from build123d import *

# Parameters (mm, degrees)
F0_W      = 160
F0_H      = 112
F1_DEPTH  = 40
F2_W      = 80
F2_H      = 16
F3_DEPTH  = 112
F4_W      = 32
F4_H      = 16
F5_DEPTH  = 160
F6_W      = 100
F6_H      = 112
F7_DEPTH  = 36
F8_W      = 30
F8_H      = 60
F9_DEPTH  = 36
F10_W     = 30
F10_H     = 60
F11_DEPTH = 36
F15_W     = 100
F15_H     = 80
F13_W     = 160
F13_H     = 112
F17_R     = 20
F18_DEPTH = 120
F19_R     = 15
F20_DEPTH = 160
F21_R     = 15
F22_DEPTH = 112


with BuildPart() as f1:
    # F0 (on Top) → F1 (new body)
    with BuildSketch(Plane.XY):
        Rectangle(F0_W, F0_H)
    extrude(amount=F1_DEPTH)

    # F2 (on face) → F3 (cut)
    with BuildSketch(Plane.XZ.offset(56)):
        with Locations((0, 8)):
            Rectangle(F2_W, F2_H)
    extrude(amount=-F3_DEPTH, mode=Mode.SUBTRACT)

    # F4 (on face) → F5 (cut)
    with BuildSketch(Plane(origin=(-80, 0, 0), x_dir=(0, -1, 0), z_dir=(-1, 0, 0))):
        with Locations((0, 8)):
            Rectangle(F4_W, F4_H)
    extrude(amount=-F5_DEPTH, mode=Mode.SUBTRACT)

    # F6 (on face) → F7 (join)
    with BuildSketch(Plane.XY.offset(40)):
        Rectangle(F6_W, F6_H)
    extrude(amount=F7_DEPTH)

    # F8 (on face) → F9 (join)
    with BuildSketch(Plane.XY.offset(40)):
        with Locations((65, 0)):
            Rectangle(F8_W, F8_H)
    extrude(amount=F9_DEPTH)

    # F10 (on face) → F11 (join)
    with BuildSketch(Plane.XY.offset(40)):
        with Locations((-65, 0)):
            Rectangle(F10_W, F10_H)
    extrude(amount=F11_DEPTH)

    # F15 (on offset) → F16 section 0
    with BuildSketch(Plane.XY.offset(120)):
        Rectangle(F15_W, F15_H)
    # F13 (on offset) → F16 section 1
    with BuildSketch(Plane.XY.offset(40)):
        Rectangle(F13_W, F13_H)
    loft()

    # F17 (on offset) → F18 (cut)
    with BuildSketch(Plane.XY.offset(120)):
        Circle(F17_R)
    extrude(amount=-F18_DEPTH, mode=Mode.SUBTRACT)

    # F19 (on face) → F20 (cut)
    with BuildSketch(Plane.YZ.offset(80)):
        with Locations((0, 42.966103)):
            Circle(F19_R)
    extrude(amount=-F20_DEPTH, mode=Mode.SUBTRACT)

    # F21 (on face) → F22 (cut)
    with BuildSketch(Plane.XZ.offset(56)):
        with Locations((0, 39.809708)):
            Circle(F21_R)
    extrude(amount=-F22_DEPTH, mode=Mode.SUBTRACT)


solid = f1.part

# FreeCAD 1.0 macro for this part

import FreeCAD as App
import Part
import Sketcher

V = App.Vector

doc = App.newDocument("Part")
body = doc.addObject("PartDesign::Body", "Body")

# Sketch on XY plane
sketch1 = doc.addObject("Sketcher::SketchObject", "Sketch")
body.addObject(sketch1)
sketch1.AttachmentSupport = (doc.XY_Plane, [""])
sketch1.MapMode = "FlatFace"
sketch1.addGeometry([
    Part.LineSegment(V(-80, 56, 0), V(-80, -56, 0)),
    Part.LineSegment(V(-80, -56, 0), V(80, -56, 0)),
    Part.LineSegment(V(80, -56, 0), V(80, 56, 0)),
    Part.LineSegment(V(80, 56, 0), V(-80, 56, 0)),
], False)
sketch1.addConstraint([
    Sketcher.Constraint("Coincident", 0, 2, 1, 1),
    Sketcher.Constraint("Coincident", 1, 2, 2, 1),
    Sketcher.Constraint("Coincident", 2, 2, 3, 1),
    Sketcher.Constraint("Coincident", 3, 2, 0, 1),
    Sketcher.Constraint("Vertical", 0),
    Sketcher.Constraint("Horizontal", 1),
    Sketcher.Constraint("Vertical", 2),
    Sketcher.Constraint("Horizontal", 3),
    Sketcher.Constraint("Symmetric", 0, 2, 2, 2, -1, 1),
    Sketcher.Constraint("DistanceX", 1, 1, 1, 2, 160.0),
    Sketcher.Constraint("DistanceY", 0, 2, 0, 1, 112.0),
])
pad1 = doc.addObject("PartDesign::Pad", "Pad")
body.addObject(pad1)
pad1.Profile = sketch1
pad1.Length = 40

# Sketch on XZ plane
sketch2 = doc.addObject("Sketcher::SketchObject", "Sketch001")
body.addObject(sketch2)
sketch2.AttachmentSupport = (doc.XZ_Plane, [""])
sketch2.MapMode = "FlatFace"
sketch2.AttachmentOffset = App.Placement(V(0, 0, 56), App.Rotation())
sketch2.addGeometry([
    Part.LineSegment(V(-40, 16, 0), V(-40, 0, 0)),
    Part.LineSegment(V(-40, 0, 0), V(40, 0, 0)),
    Part.LineSegment(V(40, 0, 0), V(40, 16, 0)),
    Part.LineSegment(V(40, 16, 0), V(-40, 16, 0)),
], False)
sketch2.addConstraint([
    Sketcher.Constraint("Coincident", 0, 2, 1, 1),
    Sketcher.Constraint("Coincident", 1, 2, 2, 1),
    Sketcher.Constraint("Coincident", 2, 2, 3, 1),
    Sketcher.Constraint("Coincident", 3, 2, 0, 1),
    Sketcher.Constraint("Vertical", 0),
    Sketcher.Constraint("Horizontal", 1),
    Sketcher.Constraint("Vertical", 2),
    Sketcher.Constraint("Horizontal", 3),
    Sketcher.Constraint("Symmetric", 0, 2, 1, 2, -1, 1),
    Sketcher.Constraint("DistanceX", 1, 1, 1, 2, 80.0),
    Sketcher.Constraint("DistanceY", 0, 2, 0, 1, 16.0),
])
pocket1 = doc.addObject("PartDesign::Pocket", "Pocket")
body.addObject(pocket1)
pocket1.Profile = sketch2
pocket1.Length = 112

# Sketch on YZ plane
sketch3 = doc.addObject("Sketcher::SketchObject", "Sketch002")
body.addObject(sketch3)
sketch3.AttachmentSupport = (doc.YZ_Plane, [""])
sketch3.MapMode = "FlatFace"
sketch3.AttachmentOffset = App.Placement(V(0, 0, -80), App.Rotation())
sketch3.addGeometry([
    Part.LineSegment(V(16, 16, 0), V(16, 0, 0)),
    Part.LineSegment(V(16, 0, 0), V(-16, 0, 0)),
    Part.LineSegment(V(-16, 0, 0), V(-16, 16, 0)),
    Part.LineSegment(V(-16, 16, 0), V(16, 16, 0)),
], False)
sketch3.addConstraint([
    Sketcher.Constraint("Coincident", 0, 2, 1, 1),
    Sketcher.Constraint("Coincident", 1, 2, 2, 1),
    Sketcher.Constraint("Coincident", 2, 2, 3, 1),
    Sketcher.Constraint("Coincident", 3, 2, 0, 1),
    Sketcher.Constraint("Vertical", 0),
    Sketcher.Constraint("Horizontal", 1),
    Sketcher.Constraint("Vertical", 2),
    Sketcher.Constraint("Horizontal", 3),
    Sketcher.Constraint("Symmetric", 0, 2, 1, 2, -1, 1),
    Sketcher.Constraint("DistanceX", 1, 2, 1, 1, 32.0),
    Sketcher.Constraint("DistanceY", 0, 2, 0, 1, 16.0),
])
pocket2 = doc.addObject("PartDesign::Pocket", "Pocket001")
body.addObject(pocket2)
pocket2.Profile = sketch3
pocket2.Length = 160
pocket2.Reversed = True

# Sketch on XY plane
sketch4 = doc.addObject("Sketcher::SketchObject", "Sketch003")
body.addObject(sketch4)
sketch4.AttachmentSupport = (doc.XY_Plane, [""])
sketch4.MapMode = "FlatFace"
sketch4.AttachmentOffset = App.Placement(V(0, 0, 40), App.Rotation())
sketch4.addGeometry([
    Part.LineSegment(V(-50, 56, 0), V(-50, -56, 0)),
    Part.LineSegment(V(-50, -56, 0), V(50, -56, 0)),
    Part.LineSegment(V(50, -56, 0), V(50, 56, 0)),
    Part.LineSegment(V(50, 56, 0), V(-50, 56, 0)),
], False)
sketch4.addConstraint([
    Sketcher.Constraint("Coincident", 0, 2, 1, 1),
    Sketcher.Constraint("Coincident", 1, 2, 2, 1),
    Sketcher.Constraint("Coincident", 2, 2, 3, 1),
    Sketcher.Constraint("Coincident", 3, 2, 0, 1),
    Sketcher.Constraint("Vertical", 0),
    Sketcher.Constraint("Horizontal", 1),
    Sketcher.Constraint("Vertical", 2),
    Sketcher.Constraint("Horizontal", 3),
    Sketcher.Constraint("Symmetric", 0, 2, 2, 2, -1, 1),
    Sketcher.Constraint("DistanceX", 1, 1, 1, 2, 100.0),
    Sketcher.Constraint("DistanceY", 0, 2, 0, 1, 112.0),
])
pad2 = doc.addObject("PartDesign::Pad", "Pad001")
body.addObject(pad2)
pad2.Profile = sketch4
pad2.Length = 36

# Sketch on XY plane
sketch5 = doc.addObject("Sketcher::SketchObject", "Sketch004")
body.addObject(sketch5)
sketch5.AttachmentSupport = (doc.XY_Plane, [""])
sketch5.MapMode = "FlatFace"
sketch5.AttachmentOffset = App.Placement(V(0, 0, 40), App.Rotation())
sketch5.addGeometry([
    Part.LineSegment(V(50, 30, 0), V(50, -30, 0)),
    Part.LineSegment(V(50, -30, 0), V(80, -30, 0)),
    Part.LineSegment(V(80, -30, 0), V(80, 30, 0)),
    Part.LineSegment(V(80, 30, 0), V(50, 30, 0)),
], False)
sketch5.addConstraint([
    Sketcher.Constraint("Coincident", 0, 2, 1, 1),
    Sketcher.Constraint("Coincident", 1, 2, 2, 1),
    Sketcher.Constraint("Coincident", 2, 2, 3, 1),
    Sketcher.Constraint("Coincident", 3, 2, 0, 1),
    Sketcher.Constraint("Vertical", 0),
    Sketcher.Constraint("Horizontal", 1),
    Sketcher.Constraint("Vertical", 2),
    Sketcher.Constraint("Horizontal", 3),
    Sketcher.Constraint("DistanceX", 1, 1, 1, 2, 30.0),
    Sketcher.Constraint("DistanceY", 0, 2, 0, 1, 60.0),
    Sketcher.Constraint("DistanceX", -1, 1, 0, 2, 50.0),
    Sketcher.Constraint("DistanceY", 0, 2, -1, 1, 30.0),
])
pad3 = doc.addObject("PartDesign::Pad", "Pad002")
body.addObject(pad3)
pad3.Profile = sketch5
pad3.Length = 36

# Sketch on XY plane
sketch6 = doc.addObject("Sketcher::SketchObject", "Sketch005")
body.addObject(sketch6)
sketch6.AttachmentSupport = (doc.XY_Plane, [""])
sketch6.MapMode = "FlatFace"
sketch6.AttachmentOffset = App.Placement(V(0, 0, 40), App.Rotation())
sketch6.addGeometry([
    Part.LineSegment(V(-80, 30, 0), V(-80, -30, 0)),
    Part.LineSegment(V(-80, -30, 0), V(-50, -30, 0)),
    Part.LineSegment(V(-50, -30, 0), V(-50, 30, 0)),
    Part.LineSegment(V(-50, 30, 0), V(-80, 30, 0)),
], False)
sketch6.addConstraint([
    Sketcher.Constraint("Coincident", 0, 2, 1, 1),
    Sketcher.Constraint("Coincident", 1, 2, 2, 1),
    Sketcher.Constraint("Coincident", 2, 2, 3, 1),
    Sketcher.Constraint("Coincident", 3, 2, 0, 1),
    Sketcher.Constraint("Vertical", 0),
    Sketcher.Constraint("Horizontal", 1),
    Sketcher.Constraint("Vertical", 2),
    Sketcher.Constraint("Horizontal", 3),
    Sketcher.Constraint("DistanceX", 1, 1, 1, 2, 30.0),
    Sketcher.Constraint("DistanceY", 0, 2, 0, 1, 60.0),
    Sketcher.Constraint("DistanceX", 0, 2, -1, 1, 80.0),
    Sketcher.Constraint("DistanceY", 0, 2, -1, 1, 30.0),
])
pad4 = doc.addObject("PartDesign::Pad", "Pad003")
body.addObject(pad4)
pad4.Profile = sketch6
pad4.Length = 36

# Sketch on XY plane
sketch7 = doc.addObject("Sketcher::SketchObject", "Sketch006")
body.addObject(sketch7)
sketch7.AttachmentSupport = (doc.XY_Plane, [""])
sketch7.MapMode = "FlatFace"
sketch7.AttachmentOffset = App.Placement(V(0, 0, 120), App.Rotation())
sketch7.addGeometry([
    Part.LineSegment(V(-50, 40, 0), V(-50, -40, 0)),
    Part.LineSegment(V(-50, -40, 0), V(50, -40, 0)),
    Part.LineSegment(V(50, -40, 0), V(50, 40, 0)),
    Part.LineSegment(V(50, 40, 0), V(-50, 40, 0)),
], False)
sketch7.addConstraint([
    Sketcher.Constraint("Coincident", 0, 2, 1, 1),
    Sketcher.Constraint("Coincident", 1, 2, 2, 1),
    Sketcher.Constraint("Coincident", 2, 2, 3, 1),
    Sketcher.Constraint("Coincident", 3, 2, 0, 1),
    Sketcher.Constraint("Vertical", 0),
    Sketcher.Constraint("Horizontal", 1),
    Sketcher.Constraint("Vertical", 2),
    Sketcher.Constraint("Horizontal", 3),
    Sketcher.Constraint("Symmetric", 0, 2, 2, 2, -1, 1),
    Sketcher.Constraint("DistanceX", 1, 1, 1, 2, 100.0),
    Sketcher.Constraint("DistanceY", 0, 2, 0, 1, 80.0),
])

# Sketch on XY plane
sketch8 = doc.addObject("Sketcher::SketchObject", "Sketch007")
body.addObject(sketch8)
sketch8.AttachmentSupport = (doc.XY_Plane, [""])
sketch8.MapMode = "FlatFace"
sketch8.AttachmentOffset = App.Placement(V(0, 0, 40), App.Rotation())
sketch8.addGeometry([
    Part.LineSegment(V(-80, 56, 0), V(-80, -56, 0)),
    Part.LineSegment(V(-80, -56, 0), V(80, -56, 0)),
    Part.LineSegment(V(80, -56, 0), V(80, 56, 0)),
    Part.LineSegment(V(80, 56, 0), V(-80, 56, 0)),
], False)
sketch8.addConstraint([
    Sketcher.Constraint("Coincident", 0, 2, 1, 1),
    Sketcher.Constraint("Coincident", 1, 2, 2, 1),
    Sketcher.Constraint("Coincident", 2, 2, 3, 1),
    Sketcher.Constraint("Coincident", 3, 2, 0, 1),
    Sketcher.Constraint("Vertical", 0),
    Sketcher.Constraint("Horizontal", 1),
    Sketcher.Constraint("Vertical", 2),
    Sketcher.Constraint("Horizontal", 3),
    Sketcher.Constraint("Symmetric", 0, 2, 2, 2, -1, 1),
    Sketcher.Constraint("DistanceX", 1, 1, 1, 2, 160.0),
    Sketcher.Constraint("DistanceY", 0, 2, 0, 1, 112.0),
])

additiveloft = doc.addObject("PartDesign::AdditiveLoft", "AdditiveLoft")
body.addObject(additiveloft)
additiveloft.Profile = sketch7
additiveloft.Sections = [sketch8]

# Sketch on XY plane
sketch9 = doc.addObject("Sketcher::SketchObject", "Sketch008")
body.addObject(sketch9)
sketch9.AttachmentSupport = (doc.XY_Plane, [""])
sketch9.MapMode = "FlatFace"
sketch9.AttachmentOffset = App.Placement(V(0, 0, 120), App.Rotation())
sketch9.addGeometry(Part.Circle(V(0, 0, 0), V(0, 0, 1), 20), False)
sketch9.addConstraint([
    Sketcher.Constraint("Coincident", 0, 3, -1, 1),
    Sketcher.Constraint("Diameter", 0, 40.0),
])
pocket3 = doc.addObject("PartDesign::Pocket", "Pocket002")
body.addObject(pocket3)
pocket3.Profile = sketch9
pocket3.Length = 120

# Sketch on YZ plane
sketch10 = doc.addObject("Sketcher::SketchObject", "Sketch009")
body.addObject(sketch10)
sketch10.AttachmentSupport = (doc.YZ_Plane, [""])
sketch10.MapMode = "FlatFace"
sketch10.AttachmentOffset = App.Placement(V(0, 0, 80), App.Rotation())
sketch10.addGeometry(Part.Circle(V(0, 43, 0), V(0, 0, 1), 15), False)
sketch10.addConstraint([
    Sketcher.Constraint("PointOnObject", 0, 3, -2),
    Sketcher.Constraint("Diameter", 0, 30.0),
    Sketcher.Constraint("DistanceY", -1, 1, 0, 3, 42.966103),
])
pocket4 = doc.addObject("PartDesign::Pocket", "Pocket003")
body.addObject(pocket4)
pocket4.Profile = sketch10
pocket4.Length = 160

# Sketch on XZ plane
sketch11 = doc.addObject("Sketcher::SketchObject", "Sketch010")
body.addObject(sketch11)
sketch11.AttachmentSupport = (doc.XZ_Plane, [""])
sketch11.MapMode = "FlatFace"
sketch11.AttachmentOffset = App.Placement(V(0, 0, 56), App.Rotation())
sketch11.addGeometry(Part.Circle(V(0, 40, 0), V(0, 0, 1), 15), False)
sketch11.addConstraint([
    Sketcher.Constraint("PointOnObject", 0, 3, -2),
    Sketcher.Constraint("Diameter", 0, 30.0),
    Sketcher.Constraint("DistanceY", -1, 1, 0, 3, 39.809708),
])
pocket5 = doc.addObject("PartDesign::Pocket", "Pocket004")
body.addObject(pocket5)
pocket5.Profile = sketch11
pocket5.Length = 112

doc.recompute()
